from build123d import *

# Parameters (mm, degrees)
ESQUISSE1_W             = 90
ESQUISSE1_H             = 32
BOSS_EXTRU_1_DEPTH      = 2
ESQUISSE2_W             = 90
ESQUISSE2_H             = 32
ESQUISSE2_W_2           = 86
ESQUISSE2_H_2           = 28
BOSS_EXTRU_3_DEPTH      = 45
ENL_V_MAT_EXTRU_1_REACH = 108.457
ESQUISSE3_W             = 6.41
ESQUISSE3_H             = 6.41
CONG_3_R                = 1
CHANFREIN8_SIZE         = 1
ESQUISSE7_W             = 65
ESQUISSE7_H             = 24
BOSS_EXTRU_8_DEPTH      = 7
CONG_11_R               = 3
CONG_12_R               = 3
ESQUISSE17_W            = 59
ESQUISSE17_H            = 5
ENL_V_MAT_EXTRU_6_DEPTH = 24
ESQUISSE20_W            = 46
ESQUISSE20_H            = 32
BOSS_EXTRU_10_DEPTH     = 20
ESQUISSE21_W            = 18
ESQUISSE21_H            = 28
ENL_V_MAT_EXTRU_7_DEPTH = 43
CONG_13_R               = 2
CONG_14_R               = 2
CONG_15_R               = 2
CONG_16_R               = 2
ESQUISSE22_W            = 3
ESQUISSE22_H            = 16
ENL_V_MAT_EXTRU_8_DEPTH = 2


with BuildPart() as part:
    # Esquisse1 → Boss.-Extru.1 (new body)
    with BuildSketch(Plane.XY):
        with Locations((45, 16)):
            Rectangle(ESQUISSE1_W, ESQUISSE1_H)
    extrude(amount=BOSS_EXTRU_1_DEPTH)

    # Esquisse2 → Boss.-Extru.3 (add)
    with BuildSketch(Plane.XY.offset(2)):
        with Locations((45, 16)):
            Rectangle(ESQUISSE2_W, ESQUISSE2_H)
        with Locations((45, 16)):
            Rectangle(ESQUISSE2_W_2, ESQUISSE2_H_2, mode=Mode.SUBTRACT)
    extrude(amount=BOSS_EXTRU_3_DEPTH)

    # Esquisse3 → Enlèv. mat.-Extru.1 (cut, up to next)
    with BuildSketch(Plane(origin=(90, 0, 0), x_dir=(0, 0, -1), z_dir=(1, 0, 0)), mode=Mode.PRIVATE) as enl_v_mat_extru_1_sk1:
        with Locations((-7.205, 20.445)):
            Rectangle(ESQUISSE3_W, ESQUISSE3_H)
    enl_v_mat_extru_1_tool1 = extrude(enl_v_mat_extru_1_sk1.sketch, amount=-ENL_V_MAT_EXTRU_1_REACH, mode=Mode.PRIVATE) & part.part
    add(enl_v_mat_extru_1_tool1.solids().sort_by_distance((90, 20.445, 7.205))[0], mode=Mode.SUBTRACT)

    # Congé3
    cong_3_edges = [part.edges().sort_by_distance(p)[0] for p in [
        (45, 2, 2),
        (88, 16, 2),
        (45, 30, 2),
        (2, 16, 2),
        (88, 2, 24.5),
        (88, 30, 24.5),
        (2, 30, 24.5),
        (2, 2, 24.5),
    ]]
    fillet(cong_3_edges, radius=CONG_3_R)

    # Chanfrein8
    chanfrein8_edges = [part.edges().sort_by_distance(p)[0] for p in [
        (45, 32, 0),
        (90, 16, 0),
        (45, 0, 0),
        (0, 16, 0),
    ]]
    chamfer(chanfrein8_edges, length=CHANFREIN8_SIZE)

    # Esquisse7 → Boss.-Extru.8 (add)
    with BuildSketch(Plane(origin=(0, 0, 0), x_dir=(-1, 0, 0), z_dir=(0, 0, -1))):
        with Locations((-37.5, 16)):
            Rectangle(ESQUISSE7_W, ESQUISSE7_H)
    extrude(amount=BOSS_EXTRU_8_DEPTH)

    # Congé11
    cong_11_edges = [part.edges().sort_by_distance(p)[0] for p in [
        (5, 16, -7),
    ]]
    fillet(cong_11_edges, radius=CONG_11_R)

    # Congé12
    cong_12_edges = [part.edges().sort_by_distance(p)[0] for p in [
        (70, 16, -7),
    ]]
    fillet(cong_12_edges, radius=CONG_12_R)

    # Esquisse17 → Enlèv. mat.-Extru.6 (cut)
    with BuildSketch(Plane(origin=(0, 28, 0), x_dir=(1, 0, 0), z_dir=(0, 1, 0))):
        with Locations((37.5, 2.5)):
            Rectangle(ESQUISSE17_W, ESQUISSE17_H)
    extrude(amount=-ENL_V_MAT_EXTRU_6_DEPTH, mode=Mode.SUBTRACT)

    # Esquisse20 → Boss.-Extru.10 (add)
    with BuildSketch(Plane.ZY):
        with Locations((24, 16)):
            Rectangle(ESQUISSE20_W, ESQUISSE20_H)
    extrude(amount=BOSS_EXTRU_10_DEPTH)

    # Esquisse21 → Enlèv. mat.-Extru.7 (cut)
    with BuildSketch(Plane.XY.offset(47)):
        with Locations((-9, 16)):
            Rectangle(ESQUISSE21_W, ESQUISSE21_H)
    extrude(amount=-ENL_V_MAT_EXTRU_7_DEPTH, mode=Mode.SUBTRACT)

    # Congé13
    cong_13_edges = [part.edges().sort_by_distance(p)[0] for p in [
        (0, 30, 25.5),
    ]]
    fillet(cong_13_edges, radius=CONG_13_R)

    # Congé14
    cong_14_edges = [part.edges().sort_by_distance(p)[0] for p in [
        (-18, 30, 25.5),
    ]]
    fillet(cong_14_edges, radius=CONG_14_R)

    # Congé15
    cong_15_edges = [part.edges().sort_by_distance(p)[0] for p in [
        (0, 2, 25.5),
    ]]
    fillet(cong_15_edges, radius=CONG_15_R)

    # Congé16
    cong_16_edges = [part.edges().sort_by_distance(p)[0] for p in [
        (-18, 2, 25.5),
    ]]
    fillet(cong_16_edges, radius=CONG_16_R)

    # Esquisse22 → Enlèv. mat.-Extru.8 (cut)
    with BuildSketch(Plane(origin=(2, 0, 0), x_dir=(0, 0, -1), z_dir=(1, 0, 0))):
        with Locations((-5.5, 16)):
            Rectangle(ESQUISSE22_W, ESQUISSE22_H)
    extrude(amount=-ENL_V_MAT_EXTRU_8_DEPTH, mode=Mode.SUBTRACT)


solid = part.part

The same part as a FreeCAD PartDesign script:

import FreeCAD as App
import Part
import Sketcher


def edges_at(feature, points):
    """Names of the edges that pass closest to the given points."""
    edges = feature.Shape.Edges
    near = lambda p: min(range(len(edges)), key=lambda i: edges[i].distToShape(Part.Vertex(*p))[0])
    return sorted({f"Edge{near(p) + 1}" for p in points})


def add_polygon(sketch, points):
    """Adds a closed chain of lines whose ends are joined by coincident constraints."""
    first, n = sketch.GeometryCount, len(points)
    for a, b in zip(points, points[1:] + points[:1]):
        sketch.addGeometry(Part.LineSegment(App.Vector(*a, 0), App.Vector(*b, 0)), False)
    for i in range(n):
        sketch.addConstraint(Sketcher.Constraint("Coincident", first + i, 2, first + (i + 1) % n, 1))

doc = App.newDocument("Part")
params = doc.addObject("Spreadsheet::Sheet", "Params")
for row, (alias, value) in enumerate([
    ("sketch1_width", "90 mm"),
    ("sketch1_height", "32 mm"),
    ("pad1_length", "2 mm"),
    ("sketch2_width", "90 mm"),
    ("sketch2_width2", "86 mm"),
    ("sketch2_height", "32 mm"),
    ("sketch2_height2", "28 mm"),
    ("pad2_length", "45 mm"),
    ("sketch3_width", "6.41 mm"),
    ("fillet_radius", "1 mm"),
    ("chamfer_size", "1 mm"),
    ("sketch4_width", "65 mm"),
    ("sketch4_height", "24 mm"),
    ("pad3_length", "7 mm"),
    ("fillet2_radius", "3 mm"),
    ("fillet3_radius", "3 mm"),
    ("sketch5_width", "59 mm"),
    ("sketch5_height", "5 mm"),
    ("pocket2_length", "24 mm"),
    ("sketch6_width", "32 mm"),
    ("sketch6_height", "46 mm"),
    ("pad4_length", "20 mm"),
    ("sketch7_width", "18 mm"),
    ("sketch7_height", "28 mm"),
    ("pocket3_length", "43 mm"),
    ("fillet4_radius", "2 mm"),
    ("fillet5_radius", "2 mm"),
    ("fillet6_radius", "2 mm"),
    ("fillet7_radius", "2 mm"),
    ("sketch8_width", "16 mm"),
    ("sketch8_height", "3 mm"),
    ("pocket4_length", "2 mm"),
], start=1):
    params.set(f"A{row}", alias)
    params.set(f"B{row}", "=" + value)
    params.setAlias(f"B{row}", alias)

body = doc.addObject("PartDesign::Body", "Body")

sketch1 = doc.addObject("Sketcher::SketchObject", "Sketch")
body.addObject(sketch1)
sketch1.AttachmentSupport = (doc.XY_Plane, [""])
sketch1.MapMode = "FlatFace"
add_polygon(sketch1, [(0, 32), (0, 0), (90, 0), (90, 32)])
sketch1.addConstraint([
    Sketcher.Constraint("Vertical", 0),
    Sketcher.Constraint("Horizontal", 1),
    Sketcher.Constraint("Vertical", 2),
    Sketcher.Constraint("Horizontal", 3),
    Sketcher.Constraint("Coincident", 0, 2, -1, 1),
    Sketcher.Constraint("DistanceX", 1, 1, 1, 2, 90.0),
    Sketcher.Constraint("DistanceY", 0, 2, 0, 1, 32.0),
])
sketch1.setExpression("Constraints[9]", "Params.sketch1_width")
sketch1.setExpression("Constraints[10]", "Params.sketch1_height")
pad1 = doc.addObject("PartDesign::Pad", "Pad")
body.addObject(pad1)
pad1.Profile = sketch1
pad1.setExpression("Length", "Params.pad1_length")

sketch2 = doc.addObject("Sketcher::SketchObject", "Sketch001")
body.addObject(sketch2)
sketch2.AttachmentSupport = (doc.XY_Plane, [""])
sketch2.MapMode = "FlatFace"
sketch2.AttachmentOffset = App.Placement(App.Vector(0, 0, 2), App.Rotation())
add_polygon(sketch2, [(0, 32), (0, 0), (90, 0), (90, 32)])
add_polygon(sketch2, [(88, 2), (2, 2), (2, 30), (88, 30)])
sketch2.addConstraint([
    Sketcher.Constraint("Vertical", 0),
    Sketcher.Constraint("Horizontal", 1),
    Sketcher.Constraint("Vertical", 2),
    Sketcher.Constraint("Horizontal", 3),
    Sketcher.Constraint("Horizontal", 4),
    Sketcher.Constraint("Vertical", 5),
    Sketcher.Constraint("Horizontal", 6),
    Sketcher.Constraint("Vertical", 7),
    Sketcher.Constraint("Coincident", 0, 2, -1, 1),
    Sketcher.Constraint("DistanceX", 1, 1, 1, 2, 90.0),
    Sketcher.Constraint("DistanceX", 4, 2, 4, 1, 86.0),
    Sketcher.Constraint("DistanceY", 0, 2, 0, 1, 32.0),
    Sketcher.Constraint("DistanceY", 5, 1, 5, 2, 28.0),
    Sketcher.Constraint("DistanceX", -1, 1, 4, 2, 2.0),
    Sketcher.Constraint("DistanceY", -1, 1, 4, 2, 2.0),
])
sketch2.setExpression("Constraints[17]", "Params.sketch2_width")
sketch2.setExpression("Constraints[18]", "Params.sketch2_width2")
sketch2.setExpression("Constraints[19]", "Params.sketch2_height")
sketch2.setExpression("Constraints[20]", "Params.sketch2_height2")
pad2 = doc.addObject("PartDesign::Pad", "Pad001")
body.addObject(pad2)
pad2.Profile = sketch2
pad2.setExpression("Length", "Params.pad2_length")

sketch3 = doc.addObject("Sketcher::SketchObject", "Sketch002")
body.addObject(sketch3)
sketch3.AttachmentSupport = (doc.YZ_Plane, [""])
sketch3.MapMode = "FlatFace"
sketch3.AttachmentOffset = App.Placement(App.Vector(0, 0, 90), App.Rotation())
add_polygon(sketch3, [(24, 10), (17, 10), (17, 4), (24, 4)])
sketch3.addConstraint([
    Sketcher.Constraint("Horizontal", 0),
    Sketcher.Constraint("Vertical", 1),
    Sketcher.Constraint("Horizontal", 2),
    Sketcher.Constraint("Vertical", 3),
    Sketcher.Constraint("Equal", 2, 1),
    Sketcher.Constraint("DistanceY", -1, 1, 1, 2, 4.0),
    Sketcher.Constraint("DistanceX", 0, 2, 0, 1, 6.41),
    Sketcher.Constraint("DistanceX", -1, 1, 0, 2, 17.24),
])
sketch3.setExpression("Constraints[10]", "Params.sketch3_width")
pocket1 = doc.addObject("PartDesign::Pocket", "Pocket")
body.addObject(pocket1)
pocket1.Profile = sketch3
pocket1.Type = "UpToFirst"
doc.recompute()

fillet = doc.addObject("PartDesign::Fillet", "Fillet")
body.addObject(fillet)
fillet.Base = (pocket1, edges_at(pocket1, [
    (45, 2, 2),
    (88, 16, 2),
    (45, 30, 2),
    (2, 16, 2),
    (88, 2, 24.5),
    (88, 30, 24.5),
    (2, 30, 24.5),
    (2, 2, 24.5),
]))
fillet.setExpression("Radius", "Params.fillet_radius")
doc.recompute()

chamfer = doc.addObject("PartDesign::Chamfer", "Chamfer")
body.addObject(chamfer)
chamfer.Base = (fillet, edges_at(fillet, [
    (45, 32, 0),
    (90, 16, 0),
    (45, 0, 0),
    (0, 16, 0),
]))
chamfer.setExpression("Size", "Params.chamfer_size")

sketch4 = doc.addObject("Sketcher::SketchObject", "Sketch003")
body.addObject(sketch4)
sketch4.AttachmentSupport = (doc.XY_Plane, [""])
sketch4.MapMode = "FlatFace"
add_polygon(sketch4, [(70, 28), (70, 4), (5, 4), (5, 28)])
sketch4.addConstraint([
    Sketcher.Constraint("Vertical", 0),
    Sketcher.Constraint("Horizontal", 1),
    Sketcher.Constraint("Vertical", 2),
    Sketcher.Constraint("Horizontal", 3),
    Sketcher.Constraint("DistanceX", 1, 2, 1, 1, 65.0),
    Sketcher.Constraint("DistanceY", 0, 2, 0, 1, 24.0),
    Sketcher.Constraint("DistanceX", -1, 1, 0, 2, 70.0),
    Sketcher.Constraint("DistanceY", -1, 1, 0, 2, 4.0),
])
sketch4.setExpression("Constraints[8]", "Params.sketch4_width")
sketch4.setExpression("Constraints[9]", "Params.sketch4_height")
pad3 = doc.addObject("PartDesign::Pad", "Pad002")
body.addObject(pad3)
pad3.Profile = sketch4
pad3.setExpression("Length", "Params.pad3_length")
pad3.Reversed = True
doc.recompute()

fillet2 = doc.addObject("PartDesign::Fillet", "Fillet001")
body.addObject(fillet2)
fillet2.Base = (pad3, edges_at(pad3, [(5, 16, -7)]))
fillet2.setExpression("Radius", "Params.fillet2_radius")
doc.recompute()

fillet3 = doc.addObject("PartDesign::Fillet", "Fillet002")
body.addObject(fillet3)
fillet3.Base = (fillet2, edges_at(fillet2, [(70, 16, -7)]))
fillet3.setExpression("Radius", "Params.fillet3_radius")

sketch5 = doc.addObject("Sketcher::SketchObject", "Sketch004")
body.addObject(sketch5)
sketch5.AttachmentSupport = (doc.XZ_Plane, [""])
sketch5.MapMode = "FlatFace"
sketch5.AttachmentOffset = App.Placement(App.Vector(0, 0, -28), App.Rotation())
add_polygon(sketch5, [(8, -5), (8, 0), (67, 0), (67, -5)])
sketch5.addConstraint([
    Sketcher.Constraint("Vertical", 0),
    Sketcher.Constraint("Horizontal", 1),
    Sketcher.Constraint("Vertical", 2),
    Sketcher.Constraint("Horizontal", 3),
    Sketcher.Constraint("PointOnObject", 0, 2, -1),
    Sketcher.Constraint("DistanceX", 1, 1, 1, 2, 59.0),
    Sketcher.Constraint("DistanceY", 0, 1, 0, 2, 5.0),
    Sketcher.Constraint("DistanceX", -1, 1, 0, 2, 8.0),
])
sketch5.setExpression("Constraints[9]", "Params.sketch5_width")
sketch5.setExpression("Constraints[10]", "Params.sketch5_height")
pocket2 = doc.addObject("PartDesign::Pocket", "Pocket001")
body.addObject(pocket2)
pocket2.Profile = sketch5
pocket2.setExpression("Length", "Params.pocket2_length")
pocket2.Reversed = True

sketch6 = doc.addObject("Sketcher::SketchObject", "Sketch005")
body.addObject(sketch6)
sketch6.AttachmentSupport = (doc.YZ_Plane, [""])
sketch6.MapMode = "FlatFace"
add_polygon(sketch6, [(32, 1), (0, 1), (0, 47), (32, 47)])
sketch6.addConstraint([
    Sketcher.Constraint("Horizontal", 0),
    Sketcher.Constraint("Vertical", 1),
    Sketcher.Constraint("Horizontal", 2),
    Sketcher.Constraint("Vertical", 3),
    Sketcher.Constraint("PointOnObject", 0, 2, -2),
    Sketcher.Constraint("DistanceX", 0, 2, 0, 1, 32.0),
    Sketcher.Constraint("DistanceY", 1, 1, 1, 2, 46.0),
    Sketcher.Constraint("DistanceY", -1, 1, 0, 2, 1.0),
])
sketch6.setExpression("Constraints[9]", "Params.sketch6_width")
sketch6.setExpression("Constraints[10]", "Params.sketch6_height")
pad4 = doc.addObject("PartDesign::Pad", "Pad003")
body.addObject(pad4)
pad4.Profile = sketch6
pad4.setExpression("Length", "Params.pad4_length")
pad4.Reversed = True

sketch7 = doc.addObject("Sketcher::SketchObject", "Sketch006")
body.addObject(sketch7)
sketch7.AttachmentSupport = (doc.XY_Plane, [""])
sketch7.MapMode = "FlatFace"
sketch7.AttachmentOffset = App.Placement(App.Vector(0, 0, 47), App.Rotation())
add_polygon(sketch7, [(-18, 30), (-18, 2), (0, 2), (0, 30)])
sketch7.addConstraint([
    Sketcher.Constraint("Vertical", 0),
    Sketcher.Constraint("Horizontal", 1),
    Sketcher.Constraint("Vertical", 2),
    Sketcher.Constraint("Horizontal", 3),
    Sketcher.Constraint("PointOnObject", 1, 2, -2),
    Sketcher.Constraint("DistanceX", 1, 1, 1, 2, 18.0),
    Sketcher.Constraint("DistanceY", 0, 2, 0, 1, 28.0),
    Sketcher.Constraint("DistanceY", -1, 1, 0, 2, 2.0),
])
sketch7.setExpression("Constraints[9]", "Params.sketch7_width")
sketch7.setExpression("Constraints[10]", "Params.sketch7_height")
pocket3 = doc.addObject("PartDesign::Pocket", "Pocket002")
body.addObject(pocket3)
pocket3.Profile = sketch7
pocket3.setExpression("Length", "Params.pocket3_length")
doc.recompute()

fillet4 = doc.addObject("PartDesign::Fillet", "Fillet003")
body.addObject(fillet4)
fillet4.Base = (pocket3, edges_at(pocket3, [(0, 30, 25.5)]))
fillet4.setExpression("Radius", "Params.fillet4_radius")
doc.recompute()

fillet5 = doc.addObject("PartDesign::Fillet", "Fillet004")
body.addObject(fillet5)
fillet5.Base = (fillet4, edges_at(fillet4, [(-18, 30, 25.5)]))
fillet5.setExpression("Radius", "Params.fillet5_radius")
doc.recompute()

fillet6 = doc.addObject("PartDesign::Fillet", "Fillet005")
body.addObject(fillet6)
fillet6.Base = (fillet5, edges_at(fillet5, [(0, 2, 25.5)]))
fillet6.setExpression("Radius", "Params.fillet6_radius")
doc.recompute()

fillet7 = doc.addObject("PartDesign::Fillet", "Fillet006")
body.addObject(fillet7)
fillet7.Base = (fillet6, edges_at(fillet6, [(-18, 2, 25.5)]))
fillet7.setExpression("Radius", "Params.fillet7_radius")

sketch8 = doc.addObject("Sketcher::SketchObject", "Sketch007")
body.addObject(sketch8)
sketch8.AttachmentSupport = (doc.YZ_Plane, [""])
sketch8.MapMode = "FlatFace"
sketch8.AttachmentOffset = App.Placement(App.Vector(0, 0, 2), App.Rotation())
add_polygon(sketch8, [(24, 7), (8, 7), (8, 4), (24, 4)])
sketch8.addConstraint([
    Sketcher.Constraint("Horizontal", 0),
    Sketcher.Constraint("Vertical", 1),
    Sketcher.Constraint("Horizontal", 2),
    Sketcher.Constraint("Vertical", 3),
    Sketcher.Constraint("DistanceX", 0, 2, 0, 1, 16.0),
    Sketcher.Constraint("DistanceY", 1, 2, 1, 1, 3.0),
    Sketcher.Constraint("DistanceX", -1, 1, 0, 2, 8.0),
    Sketcher.Constraint("DistanceY", -1, 1, 0, 2, 7.0),
])
sketch8.setExpression("Constraints[8]", "Params.sketch8_width")
sketch8.setExpression("Constraints[9]", "Params.sketch8_height")
pocket4 = doc.addObject("PartDesign::Pocket", "Pocket003")
body.addObject(pocket4)
pocket4.Profile = sketch8
pocket4.setExpression("Length", "Params.pocket4_length")

doc.recompute()
